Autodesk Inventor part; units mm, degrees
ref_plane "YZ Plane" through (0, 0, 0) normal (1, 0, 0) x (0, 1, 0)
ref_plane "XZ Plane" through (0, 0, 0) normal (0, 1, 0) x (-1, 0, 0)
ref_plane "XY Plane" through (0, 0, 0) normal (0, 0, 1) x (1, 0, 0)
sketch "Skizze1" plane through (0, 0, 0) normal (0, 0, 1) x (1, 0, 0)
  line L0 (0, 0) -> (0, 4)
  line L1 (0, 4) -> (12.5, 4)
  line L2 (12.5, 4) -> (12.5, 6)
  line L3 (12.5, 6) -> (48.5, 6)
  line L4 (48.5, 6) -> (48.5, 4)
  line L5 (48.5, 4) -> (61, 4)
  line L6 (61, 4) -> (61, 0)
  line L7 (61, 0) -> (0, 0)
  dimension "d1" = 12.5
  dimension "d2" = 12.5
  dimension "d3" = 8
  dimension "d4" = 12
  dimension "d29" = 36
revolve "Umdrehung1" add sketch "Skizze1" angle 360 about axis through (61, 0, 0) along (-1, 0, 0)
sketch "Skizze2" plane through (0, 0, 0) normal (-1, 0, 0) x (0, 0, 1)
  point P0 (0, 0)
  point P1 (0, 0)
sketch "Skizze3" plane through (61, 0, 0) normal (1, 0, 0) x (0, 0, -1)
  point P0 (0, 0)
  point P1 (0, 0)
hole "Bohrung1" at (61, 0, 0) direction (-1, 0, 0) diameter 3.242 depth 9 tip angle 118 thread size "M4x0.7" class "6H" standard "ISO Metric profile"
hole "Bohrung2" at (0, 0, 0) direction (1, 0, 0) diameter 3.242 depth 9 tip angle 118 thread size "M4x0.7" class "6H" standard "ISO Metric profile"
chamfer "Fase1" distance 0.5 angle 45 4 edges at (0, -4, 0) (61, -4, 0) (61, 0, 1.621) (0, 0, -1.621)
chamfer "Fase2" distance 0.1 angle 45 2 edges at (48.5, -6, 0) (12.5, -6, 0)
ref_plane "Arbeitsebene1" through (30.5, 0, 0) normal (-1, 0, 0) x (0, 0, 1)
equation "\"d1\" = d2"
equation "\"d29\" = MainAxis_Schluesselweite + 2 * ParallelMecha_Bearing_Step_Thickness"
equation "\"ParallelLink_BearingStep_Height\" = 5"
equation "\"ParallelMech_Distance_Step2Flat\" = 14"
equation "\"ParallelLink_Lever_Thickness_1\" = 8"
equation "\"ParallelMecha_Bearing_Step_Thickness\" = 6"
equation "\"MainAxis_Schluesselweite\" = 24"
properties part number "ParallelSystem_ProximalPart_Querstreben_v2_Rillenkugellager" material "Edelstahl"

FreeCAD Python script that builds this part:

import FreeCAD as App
import Part
import Sketcher


def edges_at(feature, points):
    """Names of the edges that pass closest to the given points."""
    edges = feature.Shape.Edges
    near = lambda p: min(range(len(edges)), key=lambda i: edges[i].distToShape(Part.Vertex(*p))[0])
    return sorted({f"Edge{near(p) + 1}" for p in points})


def add_polygon(sketch, points):
    """Adds a closed chain of lines whose ends are joined by coincident constraints."""
    first, n = sketch.GeometryCount, len(points)
    for a, b in zip(points, points[1:] + points[:1]):
        sketch.addGeometry(Part.LineSegment(App.Vector(*a, 0), App.Vector(*b, 0)), False)
    for i in range(n):
        sketch.addConstraint(Sketcher.Constraint("Coincident", first + i, 2, first + (i + 1) % n, 1))

doc = App.newDocument("Part")
params = doc.addObject("Spreadsheet::Sheet", "Params")
for row, (alias, value) in enumerate([
    ("sketch1_width", "36 mm"),
    ("sketch1_width2", "12.5 mm"),
    ("sketch1_height", "4 mm"),
    ("sketch1_height2", "2 mm"),
    ("revolution_angle", "360 deg"),
    ("hole_diameter", "3.242 mm"),
    ("hole_depth", "9 mm"),
    ("hole2_diameter", "3.242 mm"),
    ("hole2_depth", "9 mm"),
    ("chamfer_size", "0.5 mm"),
    ("chamfer2_size", "0.1 mm"),
], start=1):
    params.set(f"A{row}", alias)
    params.set(f"B{row}", "=" + value)
    params.setAlias(f"B{row}", alias)

body = doc.addObject("PartDesign::Body", "Body")

sketch1 = doc.addObject("Sketcher::SketchObject", "Sketch")
body.addObject(sketch1)
sketch1.AttachmentSupport = (doc.XY_Plane, [""])
sketch1.MapMode = "FlatFace"
add_polygon(sketch1, [(0, 4), (0, 0), (61, 0), (61, 4), (48.5, 4), (48.5, 6), (12.5, 6), (12.5, 4)])
sketch1.addConstraint(Sketcher.Constraint("Vertical", 0))
sketch1.addConstraint(Sketcher.Constraint("Horizontal", 1))
sketch1.addConstraint(Sketcher.Constraint("Vertical", 2))
sketch1.addConstraint(Sketcher.Constraint("Horizontal", 3))
sketch1.addConstraint(Sketcher.Constraint("Vertical", 4))
sketch1.addConstraint(Sketcher.Constraint("Horizontal", 5))
sketch1.addConstraint(Sketcher.Constraint("Vertical", 6))
sketch1.addConstraint(Sketcher.Constraint("Horizontal", 7))
sketch1.addConstraint(Sketcher.Constraint("Coincident", 0, 2, -1, 1))
sketch1.addConstraint(Sketcher.Constraint("Horizontal", 3, 2, 6, 2))
sketch1.addConstraint(Sketcher.Constraint("Equal", 3, 7))
sketch1.addConstraint(Sketcher.Constraint("DistanceX", 5, 2, 5, 1, 36.0))
sketch1.addConstraint(Sketcher.Constraint("DistanceX", 3, 2, 3, 1, 12.5))
sketch1.addConstraint(Sketcher.Constraint("DistanceY", 0, 2, 0, 1, 4.0))
sketch1.addConstraint(Sketcher.Constraint("DistanceY", 4, 1, 4, 2, 2.0))
sketch1.setExpression("Constraints[19]", "Params.sketch1_width")
sketch1.setExpression("Constraints[20]", "Params.sketch1_width2")
sketch1.setExpression("Constraints[21]", "Params.sketch1_height")
sketch1.setExpression("Constraints[22]", "Params.sketch1_height2")
revolution = doc.addObject("PartDesign::Revolution", "Revolution")
body.addObject(revolution)
revolution.Profile = sketch1
revolution.ReferenceAxis = (sketch1, ["H_Axis"])
revolution.setExpression("Angle", "Params.revolution_angle")

sketch2 = doc.addObject("Sketcher::SketchObject", "Sketch001")
body.addObject(sketch2)
sketch2.AttachmentSupport = (doc.YZ_Plane, [""])
sketch2.MapMode = "FlatFace"
sketch2.AttachmentOffset = App.Placement(App.Vector(0, 0, 61), App.Rotation())
sketch2.addGeometry(Part.Circle(App.Vector(0, 0, 0), App.Vector(0, 0, 1), 1.6), False)
sketch2.addConstraint(Sketcher.Constraint("Coincident", 0, 3, -1, 1))
sketch2.addConstraint(Sketcher.Constraint("Diameter", 0, 3.242))
doc.recompute()
hole = doc.addObject("PartDesign::Hole", "Hole")
body.addObject(hole)
hole.Profile = sketch2
hole.ThreadType = "None"
hole.setExpression("Diameter", "Params.hole_diameter")
hole.DepthType = "Dimension"
hole.setExpression("Depth", "Params.hole_depth")
hole.DrillPoint = "Angled"
hole.DrillPointAngle = 118

sketch3 = doc.addObject("Sketcher::SketchObject", "Sketch002")
body.addObject(sketch3)
sketch3.AttachmentSupport = (doc.YZ_Plane, [""])
sketch3.MapMode = "FlatFace"
sketch3.addGeometry(Part.Circle(App.Vector(0, 0, 0), App.Vector(0, 0, 1), 1.6), False)
sketch3.addConstraint(Sketcher.Constraint("Coincident", 0, 3, -1, 1))
sketch3.addConstraint(Sketcher.Constraint("Diameter", 0, 3.242))
doc.recompute()
hole2 = doc.addObject("PartDesign::Hole", "Hole001")
body.addObject(hole2)
hole2.Profile = sketch3
hole2.ThreadType = "None"
hole2.setExpression("Diameter", "Params.hole2_diameter")
hole2.DepthType = "Dimension"
hole2.setExpression("Depth", "Params.hole2_depth")
hole2.DrillPoint = "Angled"
hole2.DrillPointAngle = 118
hole2.Reversed = True
doc.recompute()

chamfer = doc.addObject("PartDesign::Chamfer", "Chamfer")
body.addObject(chamfer)
chamfer.Base = (hole2, edges_at(hole2, [
    (0, -4, 0),
    (61, -4, 0),
    (61, 0, 1.621),
    (0, 0, -1.621),
]))
chamfer.setExpression("Size", "Params.chamfer_size")
doc.recompute()

chamfer2 = doc.addObject("PartDesign::Chamfer", "Chamfer001")
body.addObject(chamfer2)
chamfer2.Base = (chamfer, edges_at(chamfer, [(48.5, -6, 0), (12.5, -6, 0)]))
chamfer2.setExpression("Size", "Params.chamfer2_size")

doc.recompute()
